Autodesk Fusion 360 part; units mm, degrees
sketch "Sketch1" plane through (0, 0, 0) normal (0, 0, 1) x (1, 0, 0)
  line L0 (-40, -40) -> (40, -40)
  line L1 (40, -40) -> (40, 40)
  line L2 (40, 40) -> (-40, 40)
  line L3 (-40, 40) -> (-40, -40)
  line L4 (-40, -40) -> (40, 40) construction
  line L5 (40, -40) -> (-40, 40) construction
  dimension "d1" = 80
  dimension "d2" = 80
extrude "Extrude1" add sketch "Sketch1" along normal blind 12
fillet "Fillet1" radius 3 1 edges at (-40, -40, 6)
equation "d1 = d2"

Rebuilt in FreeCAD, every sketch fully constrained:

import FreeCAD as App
import Part
import Sketcher
from FreeCAD import Vector


def edges_at(feature, points):
    """Names of the edges that pass closest to the given points."""
    edges = feature.Shape.Edges
    near = lambda p: min(range(len(edges)), key=lambda i: edges[i].distToShape(Part.Vertex(*p))[0])
    return sorted({f"Edge{near(p) + 1}" for p in points})


def add_polygon(sketch, points):
    """Adds a closed chain of lines whose ends are joined by coincident constraints."""
    first, n = sketch.GeometryCount, len(points)
    for a, b in zip(points, points[1:] + points[:1]):
        sketch.addGeometry(Part.LineSegment(App.Vector(*a, 0), App.Vector(*b, 0)), False)
    for i in range(n):
        sketch.addConstraint(Sketcher.Constraint("Coincident", first + i, 2, first + (i + 1) % n, 1))

doc = App.newDocument("Part")
params = doc.addObject("Spreadsheet::Sheet", "Params")
for row, (alias, value) in enumerate([
    ("sketch1_width", "80 mm"),
    ("pad1_length", "12 mm"),
    ("fillet_radius", "3 mm"),
], start=1):
    params.set(f"A{row}", alias)
    params.set(f"B{row}", "=" + value)
    params.setAlias(f"B{row}", alias)

body = doc.addObject("PartDesign::Body", "Body")

# Sketch on XY plane
sketch1 = body.newObject("Sketcher::SketchObject", "Sketch")
sketch1.AttachmentSupport = (doc.getObject("XY_Plane"), [""])
sketch1.MapMode = "FlatFace"
add_polygon(sketch1, [(-40, 40), (-40, -40), (40, -40), (40, 40)])  # lines 0-3
sketch1.addConstraint([
    Sketcher.Constraint("Vertical", 0),
    Sketcher.Constraint("Horizontal", 1),
    Sketcher.Constraint("Vertical", 2),
    Sketcher.Constraint("Horizontal", 3),
    Sketcher.Constraint("Symmetric", 0, 2, 2, 2, -1, 1),
    Sketcher.Constraint("Equal", 3, 0),
    Sketcher.Constraint("DistanceX", 1, 1, 1, 2, 80.0),
])
sketch1.setExpression("Constraints[10]", "Params.sketch1_width")
pad1 = body.newObject("PartDesign::Pad", "Pad")
pad1.Profile = sketch1
pad1.setExpression("Length", "Params.pad1_length")
doc.recompute()

fillet = body.newObject("PartDesign::Fillet", "Fillet")
fillet.Base = (pad1, edges_at(pad1, [(-40, -40, 6)]))
fillet.setExpression("Radius", "Params.fillet_radius")

doc.recompute()
